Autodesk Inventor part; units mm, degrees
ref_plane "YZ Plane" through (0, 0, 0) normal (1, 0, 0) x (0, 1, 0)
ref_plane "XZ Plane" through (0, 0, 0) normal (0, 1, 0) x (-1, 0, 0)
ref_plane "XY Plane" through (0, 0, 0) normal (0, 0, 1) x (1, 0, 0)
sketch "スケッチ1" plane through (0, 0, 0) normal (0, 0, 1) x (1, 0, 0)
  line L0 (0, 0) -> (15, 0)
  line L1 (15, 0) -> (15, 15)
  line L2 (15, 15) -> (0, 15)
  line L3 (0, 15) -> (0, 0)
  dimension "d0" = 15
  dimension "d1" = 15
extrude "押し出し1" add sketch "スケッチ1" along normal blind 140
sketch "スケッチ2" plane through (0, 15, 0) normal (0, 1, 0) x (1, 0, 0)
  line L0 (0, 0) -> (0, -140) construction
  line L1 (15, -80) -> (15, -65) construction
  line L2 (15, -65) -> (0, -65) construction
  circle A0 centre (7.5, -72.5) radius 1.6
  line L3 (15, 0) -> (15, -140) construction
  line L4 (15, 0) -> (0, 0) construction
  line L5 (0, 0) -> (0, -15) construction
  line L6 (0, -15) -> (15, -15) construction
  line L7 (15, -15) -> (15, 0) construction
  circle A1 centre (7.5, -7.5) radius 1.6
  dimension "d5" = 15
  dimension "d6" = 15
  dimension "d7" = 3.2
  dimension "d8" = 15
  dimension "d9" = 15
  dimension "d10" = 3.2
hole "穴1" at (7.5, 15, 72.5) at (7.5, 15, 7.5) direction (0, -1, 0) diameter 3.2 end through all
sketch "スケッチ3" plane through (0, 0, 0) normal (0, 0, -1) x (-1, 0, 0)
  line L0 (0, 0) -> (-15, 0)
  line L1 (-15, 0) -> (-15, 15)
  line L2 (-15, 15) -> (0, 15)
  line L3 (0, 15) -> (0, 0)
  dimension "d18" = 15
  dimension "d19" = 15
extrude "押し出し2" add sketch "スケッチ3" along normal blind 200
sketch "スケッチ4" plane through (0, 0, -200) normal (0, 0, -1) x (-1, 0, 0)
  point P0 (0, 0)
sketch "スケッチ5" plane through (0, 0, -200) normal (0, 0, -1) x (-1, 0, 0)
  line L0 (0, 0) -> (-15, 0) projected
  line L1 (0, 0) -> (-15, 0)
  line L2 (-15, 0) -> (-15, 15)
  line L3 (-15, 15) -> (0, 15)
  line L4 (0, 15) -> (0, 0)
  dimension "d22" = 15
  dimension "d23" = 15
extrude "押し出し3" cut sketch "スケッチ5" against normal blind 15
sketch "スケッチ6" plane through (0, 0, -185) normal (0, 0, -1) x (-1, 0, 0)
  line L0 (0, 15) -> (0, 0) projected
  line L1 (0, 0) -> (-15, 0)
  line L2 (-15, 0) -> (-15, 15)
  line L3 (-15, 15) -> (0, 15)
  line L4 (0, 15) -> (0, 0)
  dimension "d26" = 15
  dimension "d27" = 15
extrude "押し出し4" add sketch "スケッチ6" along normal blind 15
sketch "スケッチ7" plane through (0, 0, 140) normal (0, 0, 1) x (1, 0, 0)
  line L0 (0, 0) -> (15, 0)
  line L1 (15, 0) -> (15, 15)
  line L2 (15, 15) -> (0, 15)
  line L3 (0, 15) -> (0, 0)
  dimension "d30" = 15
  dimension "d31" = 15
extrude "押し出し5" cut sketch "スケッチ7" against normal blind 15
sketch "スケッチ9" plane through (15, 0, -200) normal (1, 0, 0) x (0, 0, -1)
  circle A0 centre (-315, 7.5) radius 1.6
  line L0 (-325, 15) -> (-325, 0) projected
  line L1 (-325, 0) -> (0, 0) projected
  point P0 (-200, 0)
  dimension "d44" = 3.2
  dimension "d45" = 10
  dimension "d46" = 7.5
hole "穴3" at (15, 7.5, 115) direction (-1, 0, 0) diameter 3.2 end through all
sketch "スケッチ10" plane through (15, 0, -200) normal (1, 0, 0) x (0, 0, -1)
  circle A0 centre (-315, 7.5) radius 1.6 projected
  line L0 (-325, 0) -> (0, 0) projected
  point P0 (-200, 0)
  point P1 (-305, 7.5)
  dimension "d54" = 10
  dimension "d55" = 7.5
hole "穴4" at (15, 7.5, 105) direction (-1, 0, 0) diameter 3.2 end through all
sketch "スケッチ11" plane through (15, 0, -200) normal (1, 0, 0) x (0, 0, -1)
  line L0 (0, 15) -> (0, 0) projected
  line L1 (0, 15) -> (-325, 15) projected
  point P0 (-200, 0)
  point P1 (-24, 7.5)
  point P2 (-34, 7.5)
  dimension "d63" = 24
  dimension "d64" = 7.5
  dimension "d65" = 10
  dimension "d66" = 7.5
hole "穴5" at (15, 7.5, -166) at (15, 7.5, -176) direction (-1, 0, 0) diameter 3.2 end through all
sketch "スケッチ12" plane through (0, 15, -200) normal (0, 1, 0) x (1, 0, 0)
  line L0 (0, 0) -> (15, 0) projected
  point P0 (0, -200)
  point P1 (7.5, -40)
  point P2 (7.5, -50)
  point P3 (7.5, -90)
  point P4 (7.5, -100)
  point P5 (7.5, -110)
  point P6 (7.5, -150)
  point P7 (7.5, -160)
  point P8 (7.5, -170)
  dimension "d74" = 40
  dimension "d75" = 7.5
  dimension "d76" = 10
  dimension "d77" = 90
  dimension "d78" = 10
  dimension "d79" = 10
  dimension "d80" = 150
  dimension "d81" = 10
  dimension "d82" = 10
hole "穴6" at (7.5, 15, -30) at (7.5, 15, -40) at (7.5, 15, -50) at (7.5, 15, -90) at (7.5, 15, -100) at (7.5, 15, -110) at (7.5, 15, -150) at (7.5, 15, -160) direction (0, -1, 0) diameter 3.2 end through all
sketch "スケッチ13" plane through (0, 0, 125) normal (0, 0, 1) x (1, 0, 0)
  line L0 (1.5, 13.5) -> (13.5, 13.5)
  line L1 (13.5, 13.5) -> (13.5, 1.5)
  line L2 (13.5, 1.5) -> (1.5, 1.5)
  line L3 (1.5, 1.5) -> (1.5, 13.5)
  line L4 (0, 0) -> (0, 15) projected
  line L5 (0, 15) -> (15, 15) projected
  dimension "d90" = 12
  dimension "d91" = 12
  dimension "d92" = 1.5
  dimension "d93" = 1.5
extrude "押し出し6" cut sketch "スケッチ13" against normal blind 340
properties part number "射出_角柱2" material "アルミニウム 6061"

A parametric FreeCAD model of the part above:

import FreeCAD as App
import Part
import Sketcher
from FreeCAD import Vector
Q = App.Units.Quantity


def add_polygon(sketch, points):
    """Adds a closed chain of lines whose ends are joined by coincident constraints."""
    first, n = sketch.GeometryCount, len(points)
    for a, b in zip(points, points[1:] + points[:1]):
        sketch.addGeometry(Part.LineSegment(App.Vector(*a, 0), App.Vector(*b, 0)), False)
    for i in range(n):
        sketch.addConstraint(Sketcher.Constraint("Coincident", first + i, 2, first + (i + 1) % n, 1))

doc = App.newDocument("Part")
body = doc.addObject("PartDesign::Body", "Body")

# Sketch on XY plane
sketch1 = body.newObject("Sketcher::SketchObject", "Sketch")
sketch1.AttachmentSupport = (doc.getObject("XY_Plane"), [""])
sketch1.MapMode = "FlatFace"
add_polygon(sketch1, [(0, 15), (0, 0), (15, 0), (15, 15)])  # lines 0-3
sketch1.addConstraint([
    Sketcher.Constraint("Vertical", 0),
    Sketcher.Constraint("Horizontal", 1),
    Sketcher.Constraint("Vertical", 2),
    Sketcher.Constraint("Horizontal", 3),
    Sketcher.Constraint("Coincident", 0, 2, -1, 1),
    Sketcher.Constraint("Equal", 3, 0),
    Sketcher.Constraint("DistanceX", 1, 1, 1, 2, Q("15 mm")),
])
pad1 = body.newObject("PartDesign::Pad", "Pad")
pad1.Profile = sketch1
pad1.Length = 140

# Sketch on XZ plane
sketch2 = body.newObject("Sketcher::SketchObject", "Sketch001")
sketch2.AttachmentSupport = (doc.getObject("XZ_Plane"), [""])
sketch2.MapMode = "FlatFace"
sketch2.AttachmentOffset = App.Placement(Vector(0, 0, -15), App.Rotation())
sketch2.addGeometry([
    Part.Circle(Vector(7.5, 72.5, 0), Vector(0, 0, 1), 1.6),
    Part.Circle(Vector(7.5, 7.5, 0), Vector(0, 0, 1), 1.6),
], False)
sketch2.addConstraint([
    Sketcher.Constraint("Equal", 0, 1),
    Sketcher.Constraint("Vertical", 0, 3, 1, 3),
    Sketcher.Constraint("Diameter", 0, Q("3.2 mm")),
    Sketcher.Constraint("DistanceY", 1, 3, 0, 3, Q("65 mm")),
    Sketcher.Constraint("DistanceX", -1, 1, 0, 3, Q("7.5 mm")),
    Sketcher.Constraint("DistanceY", -1, 1, 0, 3, Q("72.5 mm")),
])
doc.recompute()
hole = body.newObject("PartDesign::Hole", "Hole")
hole.Profile = sketch2
hole.ThreadType = "None"
hole.Diameter = 3.2
hole.DepthType = "ThroughAll"
hole.Reversed = True

# Sketch on XY plane
sketch3 = body.newObject("Sketcher::SketchObject", "Sketch002")
sketch3.AttachmentSupport = (doc.getObject("XY_Plane"), [""])
sketch3.MapMode = "FlatFace"
add_polygon(sketch3, [(15, 0), (0, 0), (0, 15), (15, 15)])  # lines 0-3
sketch3.addConstraint([
    Sketcher.Constraint("Horizontal", 0),
    Sketcher.Constraint("Vertical", 1),
    Sketcher.Constraint("Horizontal", 2),
    Sketcher.Constraint("Vertical", 3),
    Sketcher.Constraint("Coincident", 0, 2, -1, 1),
    Sketcher.Constraint("Equal", 2, 1),
    Sketcher.Constraint("DistanceX", 0, 2, 0, 1, Q("15 mm")),
])
pad2 = body.newObject("PartDesign::Pad", "Pad001")
pad2.Profile = sketch3
pad2.Length = 200
pad2.Reversed = True

# Sketch on XY plane
sketch4 = body.newObject("Sketcher::SketchObject", "Sketch003")
sketch4.AttachmentSupport = (doc.getObject("XY_Plane"), [""])
sketch4.MapMode = "FlatFace"
sketch4.AttachmentOffset = App.Placement(Vector(0, 0, -200), App.Rotation())
add_polygon(sketch4, [(15, 0), (0, 0), (0, 15), (15, 15)])  # lines 0-3
sketch4.addConstraint([
    Sketcher.Constraint("Horizontal", 0),
    Sketcher.Constraint("Vertical", 1),
    Sketcher.Constraint("Horizontal", 2),
    Sketcher.Constraint("Vertical", 3),
    Sketcher.Constraint("Coincident", 0, 2, -1, 1),
    Sketcher.Constraint("Equal", 2, 1),
    Sketcher.Constraint("DistanceX", 0, 2, 0, 1, Q("15 mm")),
])
pocket1 = body.newObject("PartDesign::Pocket", "Pocket")
pocket1.Profile = sketch4
pocket1.Length = 15
pocket1.Reversed = True

# Sketch on XY plane
sketch5 = body.newObject("Sketcher::SketchObject", "Sketch004")
sketch5.AttachmentSupport = (doc.getObject("XY_Plane"), [""])
sketch5.MapMode = "FlatFace"
sketch5.AttachmentOffset = App.Placement(Vector(0, 0, -185), App.Rotation())
add_polygon(sketch5, [(0, 0), (0, 15), (15, 15), (15, 0)])  # lines 0-3
sketch5.addConstraint([
    Sketcher.Constraint("Vertical", 0),
    Sketcher.Constraint("Horizontal", 1),
    Sketcher.Constraint("Vertical", 2),
    Sketcher.Constraint("Horizontal", 3),
    Sketcher.Constraint("Coincident", 3, 2, -1, 1),
    Sketcher.Constraint("Equal", 3, 0),
    Sketcher.Constraint("DistanceX", 1, 1, 1, 2, Q("15 mm")),
])
pad3 = body.newObject("PartDesign::Pad", "Pad002")
pad3.Profile = sketch5
pad3.Length = 15
pad3.Reversed = True

# Sketch on XY plane
sketch6 = body.newObject("Sketcher::SketchObject", "Sketch005")
sketch6.AttachmentSupport = (doc.getObject("XY_Plane"), [""])
sketch6.MapMode = "FlatFace"
sketch6.AttachmentOffset = App.Placement(Vector(0, 0, 140), App.Rotation())
add_polygon(sketch6, [(0, 15), (0, 0), (15, 0), (15, 15)])  # lines 0-3
sketch6.addConstraint([
    Sketcher.Constraint("Vertical", 0),
    Sketcher.Constraint("Horizontal", 1),
    Sketcher.Constraint("Vertical", 2),
    Sketcher.Constraint("Horizontal", 3),
    Sketcher.Constraint("Coincident", 0, 2, -1, 1),
    Sketcher.Constraint("Equal", 3, 0),
    Sketcher.Constraint("DistanceX", 1, 1, 1, 2, Q("15 mm")),
])
pocket2 = body.newObject("PartDesign::Pocket", "Pocket001")
pocket2.Profile = sketch6
pocket2.Length = 15

# Sketch on YZ plane
sketch7 = body.newObject("Sketcher::SketchObject", "Sketch006")
sketch7.AttachmentSupport = (doc.getObject("YZ_Plane"), [""])
sketch7.MapMode = "FlatFace"
sketch7.AttachmentOffset = App.Placement(Vector(0, 0, 15), App.Rotation())
sketch7.addGeometry(Part.Circle(Vector(7.5, 115, 0), Vector(0, 0, 1), 1.6), False)
sketch7.addConstraint([
    Sketcher.Constraint("Diameter", 0, Q("3.2 mm")),
    Sketcher.Constraint("DistanceY", -1, 1, 0, 3, Q("115 mm")),
    Sketcher.Constraint("DistanceX", -1, 1, 0, 3, Q("7.5 mm")),
])
doc.recompute()
hole2 = body.newObject("PartDesign::Hole", "Hole001")
hole2.Profile = sketch7
hole2.ThreadType = "None"
hole2.Diameter = 3.2
hole2.DepthType = "ThroughAll"

# Sketch on YZ plane
sketch8 = body.newObject("Sketcher::SketchObject", "Sketch007")
sketch8.AttachmentSupport = (doc.getObject("YZ_Plane"), [""])
sketch8.MapMode = "FlatFace"
sketch8.AttachmentOffset = App.Placement(Vector(0, 0, 15), App.Rotation())
sketch8.addGeometry(Part.Circle(Vector(7.5, 105, 0), Vector(0, 0, 1), 1.6), False)
sketch8.addConstraint([
    Sketcher.Constraint("Diameter", 0, Q("3.2 mm")),
    Sketcher.Constraint("DistanceY", -1, 1, 0, 3, Q("105 mm")),
    Sketcher.Constraint("DistanceX", -1, 1, 0, 3, Q("7.5 mm")),
])
doc.recompute()
hole3 = body.newObject("PartDesign::Hole", "Hole002")
hole3.Profile = sketch8
hole3.ThreadType = "None"
hole3.Diameter = 3.2
hole3.DepthType = "ThroughAll"

# Sketch on YZ plane
sketch9 = body.newObject("Sketcher::SketchObject", "Sketch008")
sketch9.AttachmentSupport = (doc.getObject("YZ_Plane"), [""])
sketch9.MapMode = "FlatFace"
sketch9.AttachmentOffset = App.Placement(Vector(0, 0, 15), App.Rotation())
sketch9.addGeometry([
    Part.Circle(Vector(7.5, -166, 0), Vector(0, 0, 1), 1.6),
    Part.Circle(Vector(7.5, -176, 0), Vector(0, 0, 1), 1.6),
], False)
sketch9.addConstraint([
    Sketcher.Constraint("Equal", 0, 1),
    Sketcher.Constraint("Vertical", 0, 3, 1, 3),
    Sketcher.Constraint("Diameter", 0, Q("3.2 mm")),
    Sketcher.Constraint("DistanceY", 0, 3, -1, 1, Q("166 mm")),
    Sketcher.Constraint("DistanceY", 1, 3, -1, 1, Q("176 mm")),
    Sketcher.Constraint("DistanceX", -1, 1, 0, 3, Q("7.5 mm")),
])
doc.recompute()
hole4 = body.newObject("PartDesign::Hole", "Hole003")
hole4.Profile = sketch9
hole4.ThreadType = "None"
hole4.Diameter = 3.2
hole4.DepthType = "ThroughAll"

# Sketch on XZ plane
sketch10 = body.newObject("Sketcher::SketchObject", "Sketch009")
sketch10.AttachmentSupport = (doc.getObject("XZ_Plane"), [""])
sketch10.MapMode = "FlatFace"
sketch10.AttachmentOffset = App.Placement(Vector(0, 0, -15), App.Rotation())
sketch10.addGeometry([
    Part.Circle(Vector(7.5, -30, 0), Vector(0, 0, 1), 1.6),  # 0
    Part.Circle(Vector(7.5, -40, 0), Vector(0, 0, 1), 1.6),  # 1
    Part.Circle(Vector(7.5, -50, 0), Vector(0, 0, 1), 1.6),  # 2
    Part.Circle(Vector(7.5, -90, 0), Vector(0, 0, 1), 1.6),  # 3
    Part.Circle(Vector(7.5, -100, 0), Vector(0, 0, 1), 1.6),  # 4
    Part.Circle(Vector(7.5, -110, 0), Vector(0, 0, 1), 1.6),  # 5
    Part.Circle(Vector(7.5, -150, 0), Vector(0, 0, 1), 1.6),  # 6
    Part.Circle(Vector(7.5, -160, 0), Vector(0, 0, 1), 1.6),  # 7
], False)
sketch10.addConstraint([
    Sketcher.Constraint("Equal", 0, 1),
    Sketcher.Constraint("Equal", 1, 2),
    Sketcher.Constraint("Equal", 2, 3),
    Sketcher.Constraint("Equal", 3, 4),
    Sketcher.Constraint("Equal", 4, 5),
    Sketcher.Constraint("Equal", 5, 6),
    Sketcher.Constraint("Equal", 6, 7),
    Sketcher.Constraint("Vertical", 0, 3, 1, 3),
    Sketcher.Constraint("Vertical", 1, 3, 2, 3),
    Sketcher.Constraint("Vertical", 2, 3, 3, 3),
    Sketcher.Constraint("Vertical", 3, 3, 4, 3),
    Sketcher.Constraint("Vertical", 4, 3, 5, 3),
    Sketcher.Constraint("Vertical", 5, 3, 6, 3),
    Sketcher.Constraint("Vertical", 6, 3, 7, 3),
    Sketcher.Constraint("Diameter", 0, Q("3.2 mm")),
    Sketcher.Constraint("DistanceY", 0, 3, -1, 1, Q("30 mm")),
    Sketcher.Constraint("DistanceY", 1, 3, -1, 1, Q("40 mm")),
    Sketcher.Constraint("DistanceY", 2, 3, -1, 1, Q("50 mm")),
    Sketcher.Constraint("DistanceY", 3, 3, -1, 1, Q("90 mm")),
    Sketcher.Constraint("DistanceY", 4, 3, -1, 1, Q("100 mm")),
    Sketcher.Constraint("DistanceY", 5, 3, -1, 1, Q("110 mm")),
    Sketcher.Constraint("DistanceY", 6, 3, -1, 1, Q("150 mm")),
    Sketcher.Constraint("DistanceY", 7, 3, -1, 1, Q("160 mm")),
    Sketcher.Constraint("DistanceX", -1, 1, 0, 3, Q("7.5 mm")),
])
doc.recompute()
hole5 = body.newObject("PartDesign::Hole", "Hole004")
hole5.Profile = sketch10
hole5.ThreadType = "None"
hole5.Diameter = 3.2
hole5.DepthType = "ThroughAll"
hole5.Reversed = True

# Sketch on XY plane
sketch11 = body.newObject("Sketcher::SketchObject", "Sketch010")
sketch11.AttachmentSupport = (doc.getObject("XY_Plane"), [""])
sketch11.MapMode = "FlatFace"
sketch11.AttachmentOffset = App.Placement(Vector(0, 0, 125), App.Rotation())
add_polygon(sketch11, [(14, 14), (2, 14), (2, 2), (14, 2)])  # lines 0-3
sketch11.addConstraint([
    Sketcher.Constraint("Horizontal", 0),
    Sketcher.Constraint("Vertical", 1),
    Sketcher.Constraint("Horizontal", 2),
    Sketcher.Constraint("Vertical", 3),
    Sketcher.Constraint("Equal", 2, 1),
    Sketcher.Constraint("DistanceX", 0, 2, 0, 1, Q("12 mm")),
    Sketcher.Constraint("DistanceX", -1, 1, 0, 2, Q("1.5 mm")),
    Sketcher.Constraint("DistanceY", -1, 1, 1, 2, Q("1.5 mm")),
])
pocket3 = body.newObject("PartDesign::Pocket", "Pocket002")
pocket3.Profile = sketch11
pocket3.Length = 340

doc.recompute()
